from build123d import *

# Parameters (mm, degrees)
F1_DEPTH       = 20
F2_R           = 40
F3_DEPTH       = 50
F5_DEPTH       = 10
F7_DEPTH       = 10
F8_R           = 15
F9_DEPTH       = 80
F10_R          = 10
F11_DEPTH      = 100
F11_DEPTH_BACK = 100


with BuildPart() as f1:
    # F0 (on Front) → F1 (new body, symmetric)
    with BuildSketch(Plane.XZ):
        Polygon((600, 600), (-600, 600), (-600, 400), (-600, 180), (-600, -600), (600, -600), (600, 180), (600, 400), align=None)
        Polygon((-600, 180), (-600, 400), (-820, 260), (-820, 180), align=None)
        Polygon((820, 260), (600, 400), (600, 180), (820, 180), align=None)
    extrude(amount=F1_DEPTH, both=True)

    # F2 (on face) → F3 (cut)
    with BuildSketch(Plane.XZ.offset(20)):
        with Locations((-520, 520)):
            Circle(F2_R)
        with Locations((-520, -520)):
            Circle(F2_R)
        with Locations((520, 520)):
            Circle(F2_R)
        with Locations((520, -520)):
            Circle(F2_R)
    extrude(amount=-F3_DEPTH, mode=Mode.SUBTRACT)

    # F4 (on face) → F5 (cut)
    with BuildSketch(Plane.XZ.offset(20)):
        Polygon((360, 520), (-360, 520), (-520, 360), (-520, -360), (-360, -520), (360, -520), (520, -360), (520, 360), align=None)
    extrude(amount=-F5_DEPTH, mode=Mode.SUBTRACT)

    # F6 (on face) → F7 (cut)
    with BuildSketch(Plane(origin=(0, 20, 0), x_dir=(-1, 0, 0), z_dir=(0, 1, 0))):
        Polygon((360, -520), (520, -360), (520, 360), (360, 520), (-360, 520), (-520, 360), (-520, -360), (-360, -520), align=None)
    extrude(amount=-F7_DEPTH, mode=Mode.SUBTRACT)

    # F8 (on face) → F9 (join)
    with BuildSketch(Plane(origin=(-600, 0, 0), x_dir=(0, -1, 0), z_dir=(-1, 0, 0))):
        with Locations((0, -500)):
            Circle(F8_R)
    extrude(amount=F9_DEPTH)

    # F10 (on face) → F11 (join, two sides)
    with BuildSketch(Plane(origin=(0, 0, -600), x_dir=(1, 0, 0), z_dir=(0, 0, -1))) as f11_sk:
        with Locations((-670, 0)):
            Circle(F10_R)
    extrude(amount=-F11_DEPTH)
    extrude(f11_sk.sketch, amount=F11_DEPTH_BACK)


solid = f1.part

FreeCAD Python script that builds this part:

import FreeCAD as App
import Part
import Sketcher
from FreeCAD import Vector
Q = App.Units.Quantity


def add_polygon(sketch, points):
    """Adds a closed chain of lines whose ends are joined by coincident constraints."""
    first, n = sketch.GeometryCount, len(points)
    for a, b in zip(points, points[1:] + points[:1]):
        sketch.addGeometry(Part.LineSegment(App.Vector(*a, 0), App.Vector(*b, 0)), False)
    for i in range(n):
        sketch.addConstraint(Sketcher.Constraint("Coincident", first + i, 2, first + (i + 1) % n, 1))

doc = App.newDocument("Part")
params = doc.addObject("Spreadsheet::Sheet", "Params")
for row, (alias, value) in enumerate([
    ("sketch1_width", "1200 mm"),
    ("sketch1_width2", "220 mm"),
    ("sketch1_height", "200 mm"),
    ("sketch1_height2", "80 mm"),
    ("sketch1_height3", "780 mm"),
    ("pad1_length", "40 mm"),
    ("sketch2_diameter", "80 mm"),
    ("pocket1_length", "50 mm"),
    ("sketch3_width", "720 mm"),
    ("pocket2_length", "10 mm"),
    ("sketch4_width", "720 mm"),
    ("pocket3_length", "10 mm"),
    ("sketch5_diameter", "30 mm"),
    ("pad2_length", "80 mm"),
    ("sketch6_diameter", "20 mm"),
    ("pad3_length", "100 mm"),
    ("pad3_length2", "100 mm"),
], start=1):
    params.set(f"A{row}", alias)
    params.set(f"B{row}", "=" + value)
    params.setAlias(f"B{row}", alias)

body = doc.addObject("PartDesign::Body", "Body")

# Sketch on XZ plane
sketch1 = body.newObject("Sketcher::SketchObject", "Sketch")
sketch1.AttachmentSupport = (doc.getObject("XZ_Plane"), [""])
sketch1.MapMode = "FlatFace"
add_polygon(sketch1, [(600, 600), (-600, 600), (-600, 400), (-820, 260), (-820, 180), (-600, 180), (-600, -600), (600, -600), (600, 180), (820, 180), (820, 260), (600, 400)])  # lines 0-11
sketch1.addConstraint([
    Sketcher.Constraint("Horizontal", 0),
    Sketcher.Constraint("Vertical", 1),
    Sketcher.Constraint("Vertical", 3),
    Sketcher.Constraint("Horizontal", 4),
    Sketcher.Constraint("Vertical", 5),
    Sketcher.Constraint("Horizontal", 6),
    Sketcher.Constraint("Vertical", 7),
    Sketcher.Constraint("Horizontal", 8),
    Sketcher.Constraint("Vertical", 9),
    Sketcher.Constraint("Vertical", 11),
    Sketcher.Constraint("Symmetric", 0, 2, 6, 2, -1, 1),
    Sketcher.Constraint("Symmetric", 4, 2, 7, 2, -2),
    Sketcher.Constraint("Symmetric", 2, 2, 9, 2, -2),
    Sketcher.Constraint("Symmetric", 1, 2, 10, 2, -2),
    Sketcher.Constraint("DistanceX", 0, 2, 0, 1, Q("1200 mm")),
    Sketcher.Constraint("DistanceX", 4, 1, 4, 2, Q("220 mm")),
    Sketcher.Constraint("DistanceY", 1, 2, 1, 1, Q("200 mm")),
    Sketcher.Constraint("DistanceY", 3, 2, 3, 1, Q("80 mm")),
    Sketcher.Constraint("DistanceY", 5, 2, 5, 1, Q("780 mm")),
    Sketcher.Constraint("DistanceY", -1, 1, 0, 2, Q("600 mm")),
])
sketch1.setExpression("Constraints[26]", "Params.sketch1_width")
sketch1.setExpression("Constraints[27]", "Params.sketch1_width2")
sketch1.setExpression("Constraints[28]", "Params.sketch1_height")
sketch1.setExpression("Constraints[29]", "Params.sketch1_height2")
sketch1.setExpression("Constraints[30]", "Params.sketch1_height3")
pad1 = body.newObject("PartDesign::Pad", "Pad")
pad1.Profile = sketch1
pad1.setExpression("Length", "Params.pad1_length")
pad1.Midplane = True

# Sketch on XZ plane
sketch2 = body.newObject("Sketcher::SketchObject", "Sketch001")
sketch2.AttachmentSupport = (doc.getObject("XZ_Plane"), [""])
sketch2.MapMode = "FlatFace"
sketch2.AttachmentOffset = App.Placement(Vector(0, 0, 20), App.Rotation())
sketch2.addGeometry([
    Part.Circle(Vector(-520, 520, 0), Vector(0, 0, 1), 40),
    Part.Circle(Vector(-520, -520, 0), Vector(0, 0, 1), 40),
    Part.Circle(Vector(520, 520, 0), Vector(0, 0, 1), 40),
    Part.Circle(Vector(520, -520, 0), Vector(0, 0, 1), 40),
], False)
sketch2.addConstraint([
    Sketcher.Constraint("Equal", 0, 1),
    Sketcher.Constraint("Equal", 1, 2),
    Sketcher.Constraint("Equal", 2, 3),
    Sketcher.Constraint("Symmetric", 1, 3, 2, 3, -1, 1),
    Sketcher.Constraint("Symmetric", 0, 3, 3, 3, -1, 1),
    Sketcher.Constraint("Symmetric", 0, 3, 2, 3, -2),
    Sketcher.Constraint("Diameter", 0, Q("80 mm")),
    Sketcher.Constraint("DistanceX", 0, 3, -1, 1, Q("520 mm")),
    Sketcher.Constraint("DistanceY", -1, 1, 0, 3, Q("520 mm")),
])
sketch2.setExpression("Constraints[6]", "Params.sketch2_diameter")
pocket1 = body.newObject("PartDesign::Pocket", "Pocket")
pocket1.Profile = sketch2
pocket1.setExpression("Length", "Params.pocket1_length")

# Sketch on XZ plane
sketch3 = body.newObject("Sketcher::SketchObject", "Sketch002")
sketch3.AttachmentSupport = (doc.getObject("XZ_Plane"), [""])
sketch3.MapMode = "FlatFace"
sketch3.AttachmentOffset = App.Placement(Vector(0, 0, 20), App.Rotation())
add_polygon(sketch3, [(360, 520), (-360, 520), (-520, 360), (-520, -360), (-360, -520), (360, -520), (520, -360), (520, 360)])  # lines 0-7
sketch3.addConstraint([
    Sketcher.Constraint("Horizontal", 0),
    Sketcher.Constraint("Vertical", 2),
    Sketcher.Constraint("Horizontal", 4),
    Sketcher.Constraint("Vertical", 6),
    Sketcher.Constraint("Symmetric", 0, 2, 4, 2, -1, 1),
    Sketcher.Constraint("Symmetric", 1, 2, 5, 2, -1, 1),
    Sketcher.Constraint("Perpendicular", 1, 3),
    Sketcher.Constraint("Perpendicular", 5, 7),
    Sketcher.Constraint("Horizontal", 2, 2, 5, 2),
    Sketcher.Constraint("Horizontal", 1, 2, 6, 2),
    Sketcher.Constraint("Vertical", 0, 2, 3, 2),
    Sketcher.Constraint("Equal", 4, 2),
    Sketcher.Constraint("DistanceX", 0, 2, 0, 1, Q("720 mm")),
    Sketcher.Constraint("DistanceY", -1, 1, 0, 2, Q("520 mm")),
])
sketch3.setExpression("Constraints[20]", "Params.sketch3_width")
pocket2 = body.newObject("PartDesign::Pocket", "Pocket001")
pocket2.Profile = sketch3
pocket2.setExpression("Length", "Params.pocket2_length")

# Sketch on XZ plane
sketch4 = body.newObject("Sketcher::SketchObject", "Sketch003")
sketch4.AttachmentSupport = (doc.getObject("XZ_Plane"), [""])
sketch4.MapMode = "FlatFace"
sketch4.AttachmentOffset = App.Placement(Vector(0, 0, -20), App.Rotation())
add_polygon(sketch4, [(-360, -520), (-520, -360), (-520, 360), (-360, 520), (360, 520), (520, 360), (520, -360), (360, -520)])  # lines 0-7
sketch4.addConstraint([
    Sketcher.Constraint("Vertical", 1),
    Sketcher.Constraint("Horizontal", 3),
    Sketcher.Constraint("Vertical", 5),
    Sketcher.Constraint("Horizontal", 7),
    Sketcher.Constraint("Symmetric", 0, 2, 4, 2, -1, 1),
    Sketcher.Constraint("Symmetric", 2, 2, 6, 2, -1, 1),
    Sketcher.Constraint("Perpendicular", 0, 2),
    Sketcher.Constraint("Perpendicular", 2, 4),
    Sketcher.Constraint("Perpendicular", 4, 6),
    Sketcher.Constraint("Horizontal", 1, 2, 4, 2),
    Sketcher.Constraint("Vertical", 3, 2, 6, 2),
    Sketcher.Constraint("Equal", 7, 1),
    Sketcher.Constraint("DistanceX", 3, 1, 3, 2, Q("720 mm")),
    Sketcher.Constraint("DistanceX", 0, 2, -1, 1, Q("520 mm")),
])
sketch4.setExpression("Constraints[20]", "Params.sketch4_width")
pocket3 = body.newObject("PartDesign::Pocket", "Pocket002")
pocket3.Profile = sketch4
pocket3.setExpression("Length", "Params.pocket3_length")
pocket3.Reversed = True

# Sketch on YZ plane
sketch5 = body.newObject("Sketcher::SketchObject", "Sketch004")
sketch5.AttachmentSupport = (doc.getObject("YZ_Plane"), [""])
sketch5.MapMode = "FlatFace"
sketch5.AttachmentOffset = App.Placement(Vector(0, 0, -600), App.Rotation())
sketch5.addGeometry(Part.Circle(Vector(0, -500, 0), Vector(0, 0, 1), 15), False)
sketch5.addConstraint([
    Sketcher.Constraint("PointOnObject", 0, 3, -2),
    Sketcher.Constraint("Diameter", 0, Q("30 mm")),
    Sketcher.Constraint("DistanceY", 0, 3, -1, 1, Q("500 mm")),
])
sketch5.setExpression("Constraints[1]", "Params.sketch5_diameter")
pad2 = body.newObject("PartDesign::Pad", "Pad001")
pad2.Profile = sketch5
pad2.setExpression("Length", "Params.pad2_length")
pad2.Reversed = True

# Sketch on XY plane
sketch6 = body.newObject("Sketcher::SketchObject", "Sketch005")
sketch6.AttachmentSupport = (doc.getObject("XY_Plane"), [""])
sketch6.MapMode = "FlatFace"
sketch6.AttachmentOffset = App.Placement(Vector(0, 0, -600), App.Rotation())
sketch6.addGeometry(Part.Circle(Vector(-670, 0, 0), Vector(0, 0, 1), 10), False)
sketch6.addConstraint([
    Sketcher.Constraint("PointOnObject", 0, 3, -1),
    Sketcher.Constraint("Diameter", 0, Q("20 mm")),
    Sketcher.Constraint("DistanceX", 0, 3, -1, 1, Q("670 mm")),
])
sketch6.setExpression("Constraints[1]", "Params.sketch6_diameter")
pad3 = body.newObject("PartDesign::Pad", "Pad002")
pad3.Profile = sketch6
pad3.Type = "TwoLengths"
pad3.setExpression("Length", "Params.pad3_length")
pad3.setExpression("Length2", "Params.pad3_length2")

doc.recompute()
